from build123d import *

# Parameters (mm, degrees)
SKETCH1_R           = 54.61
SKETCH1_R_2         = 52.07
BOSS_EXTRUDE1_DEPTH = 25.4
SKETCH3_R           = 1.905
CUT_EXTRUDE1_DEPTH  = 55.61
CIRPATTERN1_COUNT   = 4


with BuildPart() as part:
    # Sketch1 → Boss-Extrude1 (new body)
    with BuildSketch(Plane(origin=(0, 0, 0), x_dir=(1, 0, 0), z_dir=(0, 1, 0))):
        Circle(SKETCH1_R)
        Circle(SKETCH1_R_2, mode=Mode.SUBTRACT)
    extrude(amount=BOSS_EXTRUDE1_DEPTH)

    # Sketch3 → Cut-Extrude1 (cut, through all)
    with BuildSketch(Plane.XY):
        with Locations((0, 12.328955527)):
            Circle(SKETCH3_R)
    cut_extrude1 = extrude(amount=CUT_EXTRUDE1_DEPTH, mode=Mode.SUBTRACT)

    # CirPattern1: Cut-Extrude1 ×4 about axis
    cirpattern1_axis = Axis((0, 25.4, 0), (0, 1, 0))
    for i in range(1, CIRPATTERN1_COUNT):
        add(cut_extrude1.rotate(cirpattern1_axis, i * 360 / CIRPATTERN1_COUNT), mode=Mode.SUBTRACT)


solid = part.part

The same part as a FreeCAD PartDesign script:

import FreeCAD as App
import Part
import Sketcher

V = App.Vector
Q = App.Units.Quantity

doc = App.newDocument("Part")
body = doc.addObject("PartDesign::Body", "Body")

sketch1 = doc.addObject("Sketcher::SketchObject", "Sketch")
body.addObject(sketch1)
sketch1.AttachmentSupport = (doc.XZ_Plane, [""])
sketch1.MapMode = "FlatFace"
sketch1.addGeometry([
    Part.Circle(V(0, 0, 0), V(0, 0, 1), 55),
    Part.Circle(V(0, 0, 0), V(0, 0, 1), 52),
], False)
sketch1.addConstraint([
    Sketcher.Constraint("Coincident", 0, 3, -1, 1),
    Sketcher.Constraint("Coincident", 1, 3, -1, 1),
    Sketcher.Constraint("Diameter", 0, Q("4.3 in")),
    Sketcher.Constraint("Diameter", 1, Q("4.1 in")),
])
pad1 = doc.addObject("PartDesign::Pad", "Pad")
body.addObject(pad1)
pad1.Profile = sketch1
pad1.Length = Q("1 in")
pad1.Reversed = True

sketch2 = doc.addObject("Sketcher::SketchObject", "Sketch001")
body.addObject(sketch2)
sketch2.AttachmentSupport = (doc.XY_Plane, [""])
sketch2.MapMode = "FlatFace"
sketch2.addGeometry(Part.Circle(V(0, 12.3, 0), V(0, 0, 1), 1.9), False)
sketch2.addConstraint([
    Sketcher.Constraint("PointOnObject", 0, 3, -2),
    Sketcher.Constraint("Diameter", 0, Q("0.15 in")),
    Sketcher.Constraint("DistanceY", -1, 1, 0, 3, 12.328956),
])
pocket1 = doc.addObject("PartDesign::Pocket", "Pocket")
body.addObject(pocket1)
pocket1.Profile = sketch2
pocket1.Type = "ThroughAll"
pocket1.Reversed = True
doc.recompute()

polarpattern = doc.addObject("PartDesign::PolarPattern", "PolarPattern")
body.addObject(polarpattern)
polarpattern.Originals = [pocket1]
polarpattern.Axis = (doc.Y_Axis, [""])
polarpattern.Angle = 360
polarpattern.Occurrences = 4
body.Tip = polarpattern

doc.recompute()
